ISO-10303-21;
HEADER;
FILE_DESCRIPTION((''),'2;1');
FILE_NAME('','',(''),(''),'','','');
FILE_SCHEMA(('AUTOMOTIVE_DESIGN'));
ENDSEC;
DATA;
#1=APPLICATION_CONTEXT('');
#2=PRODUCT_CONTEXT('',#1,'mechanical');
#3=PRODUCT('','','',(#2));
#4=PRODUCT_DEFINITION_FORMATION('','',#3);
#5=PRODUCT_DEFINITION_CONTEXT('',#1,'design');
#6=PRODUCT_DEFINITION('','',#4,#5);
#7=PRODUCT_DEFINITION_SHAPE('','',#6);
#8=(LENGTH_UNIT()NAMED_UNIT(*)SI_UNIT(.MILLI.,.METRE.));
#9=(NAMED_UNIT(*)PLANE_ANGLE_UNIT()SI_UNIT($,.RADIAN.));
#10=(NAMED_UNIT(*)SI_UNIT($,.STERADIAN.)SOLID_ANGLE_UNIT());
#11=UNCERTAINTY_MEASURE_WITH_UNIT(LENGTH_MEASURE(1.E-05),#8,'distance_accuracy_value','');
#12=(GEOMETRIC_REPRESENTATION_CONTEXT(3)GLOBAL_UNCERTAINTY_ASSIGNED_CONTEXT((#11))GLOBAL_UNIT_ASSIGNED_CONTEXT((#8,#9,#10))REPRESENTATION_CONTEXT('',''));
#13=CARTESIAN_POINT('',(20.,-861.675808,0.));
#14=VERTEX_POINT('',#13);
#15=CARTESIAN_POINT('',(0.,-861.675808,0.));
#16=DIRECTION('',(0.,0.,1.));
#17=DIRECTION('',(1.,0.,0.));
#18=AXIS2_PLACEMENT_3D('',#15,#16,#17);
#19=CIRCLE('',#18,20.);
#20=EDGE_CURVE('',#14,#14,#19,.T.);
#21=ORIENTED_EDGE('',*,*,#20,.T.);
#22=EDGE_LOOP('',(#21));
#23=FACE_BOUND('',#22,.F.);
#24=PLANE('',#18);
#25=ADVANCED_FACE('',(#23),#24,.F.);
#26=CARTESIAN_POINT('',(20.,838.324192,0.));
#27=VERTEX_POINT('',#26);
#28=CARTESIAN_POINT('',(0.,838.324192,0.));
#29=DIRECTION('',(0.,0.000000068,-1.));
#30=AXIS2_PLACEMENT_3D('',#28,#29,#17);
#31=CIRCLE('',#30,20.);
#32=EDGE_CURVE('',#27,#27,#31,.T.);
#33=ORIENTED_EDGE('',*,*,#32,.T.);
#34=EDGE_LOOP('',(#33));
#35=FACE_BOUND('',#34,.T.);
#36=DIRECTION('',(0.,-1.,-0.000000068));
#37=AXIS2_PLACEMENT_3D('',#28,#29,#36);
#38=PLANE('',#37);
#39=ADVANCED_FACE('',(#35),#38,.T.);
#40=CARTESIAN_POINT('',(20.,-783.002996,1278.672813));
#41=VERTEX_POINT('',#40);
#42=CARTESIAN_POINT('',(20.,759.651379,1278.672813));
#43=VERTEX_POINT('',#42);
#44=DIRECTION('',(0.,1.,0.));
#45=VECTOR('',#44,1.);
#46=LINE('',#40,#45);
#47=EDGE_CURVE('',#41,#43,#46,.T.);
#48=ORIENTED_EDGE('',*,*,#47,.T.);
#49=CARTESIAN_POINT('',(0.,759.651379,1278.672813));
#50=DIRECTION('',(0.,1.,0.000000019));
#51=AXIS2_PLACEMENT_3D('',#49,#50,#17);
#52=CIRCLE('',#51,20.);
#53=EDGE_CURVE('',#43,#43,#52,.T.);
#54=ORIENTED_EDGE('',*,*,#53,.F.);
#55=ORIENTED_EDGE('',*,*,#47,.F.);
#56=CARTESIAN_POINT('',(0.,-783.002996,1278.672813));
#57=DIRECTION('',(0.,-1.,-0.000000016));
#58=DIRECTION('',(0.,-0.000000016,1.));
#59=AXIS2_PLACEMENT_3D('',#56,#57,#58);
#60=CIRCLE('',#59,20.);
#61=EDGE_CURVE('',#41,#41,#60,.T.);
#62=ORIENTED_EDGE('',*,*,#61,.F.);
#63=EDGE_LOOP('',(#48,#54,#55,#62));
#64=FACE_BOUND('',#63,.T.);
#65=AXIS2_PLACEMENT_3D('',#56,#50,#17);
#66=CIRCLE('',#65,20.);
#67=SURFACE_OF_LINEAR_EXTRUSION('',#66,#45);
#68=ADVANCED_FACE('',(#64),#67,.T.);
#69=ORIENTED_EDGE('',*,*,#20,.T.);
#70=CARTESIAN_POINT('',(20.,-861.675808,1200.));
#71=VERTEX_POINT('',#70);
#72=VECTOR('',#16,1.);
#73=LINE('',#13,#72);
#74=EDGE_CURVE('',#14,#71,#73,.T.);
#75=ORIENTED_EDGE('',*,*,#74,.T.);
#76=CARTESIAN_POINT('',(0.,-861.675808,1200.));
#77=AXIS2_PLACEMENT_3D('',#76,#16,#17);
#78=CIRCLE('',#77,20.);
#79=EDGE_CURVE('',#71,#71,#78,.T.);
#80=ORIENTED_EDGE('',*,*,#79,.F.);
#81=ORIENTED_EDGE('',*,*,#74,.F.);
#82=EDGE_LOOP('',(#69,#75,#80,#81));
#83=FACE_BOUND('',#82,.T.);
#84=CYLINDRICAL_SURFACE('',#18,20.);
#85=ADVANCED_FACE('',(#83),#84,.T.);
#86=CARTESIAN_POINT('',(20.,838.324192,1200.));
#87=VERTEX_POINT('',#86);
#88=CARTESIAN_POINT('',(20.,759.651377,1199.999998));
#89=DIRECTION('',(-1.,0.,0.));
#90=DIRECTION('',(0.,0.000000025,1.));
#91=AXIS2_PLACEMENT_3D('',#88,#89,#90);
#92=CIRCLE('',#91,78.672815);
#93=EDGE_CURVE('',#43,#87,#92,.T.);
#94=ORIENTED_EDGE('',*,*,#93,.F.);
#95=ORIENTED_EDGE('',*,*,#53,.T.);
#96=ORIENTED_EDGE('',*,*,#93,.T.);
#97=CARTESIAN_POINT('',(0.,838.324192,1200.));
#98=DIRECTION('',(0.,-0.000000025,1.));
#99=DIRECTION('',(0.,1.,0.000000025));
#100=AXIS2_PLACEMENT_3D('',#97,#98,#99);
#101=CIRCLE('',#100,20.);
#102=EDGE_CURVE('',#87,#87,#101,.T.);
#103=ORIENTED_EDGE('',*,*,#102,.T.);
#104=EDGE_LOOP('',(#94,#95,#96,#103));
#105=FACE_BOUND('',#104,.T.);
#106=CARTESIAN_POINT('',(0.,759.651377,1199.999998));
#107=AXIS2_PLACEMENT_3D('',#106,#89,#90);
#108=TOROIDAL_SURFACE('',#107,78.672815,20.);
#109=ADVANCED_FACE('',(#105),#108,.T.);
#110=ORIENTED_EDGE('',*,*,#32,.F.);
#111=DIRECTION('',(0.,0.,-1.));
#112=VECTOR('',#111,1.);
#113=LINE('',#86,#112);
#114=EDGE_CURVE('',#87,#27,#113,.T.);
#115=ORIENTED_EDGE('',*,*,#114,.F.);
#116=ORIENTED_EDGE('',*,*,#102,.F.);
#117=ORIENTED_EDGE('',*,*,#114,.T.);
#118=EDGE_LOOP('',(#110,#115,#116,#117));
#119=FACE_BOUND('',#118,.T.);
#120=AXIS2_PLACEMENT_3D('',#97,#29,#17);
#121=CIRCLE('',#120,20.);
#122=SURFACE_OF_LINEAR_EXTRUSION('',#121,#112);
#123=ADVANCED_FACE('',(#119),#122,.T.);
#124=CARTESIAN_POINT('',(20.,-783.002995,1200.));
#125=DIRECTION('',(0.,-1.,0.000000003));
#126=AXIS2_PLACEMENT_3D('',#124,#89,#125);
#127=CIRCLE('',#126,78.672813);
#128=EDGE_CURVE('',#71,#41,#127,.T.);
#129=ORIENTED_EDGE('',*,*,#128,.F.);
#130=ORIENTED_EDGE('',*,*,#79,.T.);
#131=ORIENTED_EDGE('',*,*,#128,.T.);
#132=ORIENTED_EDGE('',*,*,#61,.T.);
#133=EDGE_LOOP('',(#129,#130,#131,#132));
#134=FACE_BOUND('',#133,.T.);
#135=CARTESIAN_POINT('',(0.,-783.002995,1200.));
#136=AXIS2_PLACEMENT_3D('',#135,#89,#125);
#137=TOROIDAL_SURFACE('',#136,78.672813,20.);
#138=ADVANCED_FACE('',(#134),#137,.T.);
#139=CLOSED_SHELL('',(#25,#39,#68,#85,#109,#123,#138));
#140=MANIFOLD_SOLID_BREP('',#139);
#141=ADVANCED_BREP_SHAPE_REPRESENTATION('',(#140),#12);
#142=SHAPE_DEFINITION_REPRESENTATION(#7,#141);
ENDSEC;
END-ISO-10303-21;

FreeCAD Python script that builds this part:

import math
import FreeCAD as App
import Part
import Sketcher
from FreeCAD import Vector
Q = App.Units.Quantity

doc = App.newDocument("Part")
body = doc.addObject("PartDesign::Body", "Body")

# Sketch on XY plane
sketch1 = body.newObject("Sketcher::SketchObject", "Sketch")
sketch1.AttachmentSupport = (doc.getObject("XY_Plane"), [""])
sketch1.MapMode = "FlatFace"
sketch1.addGeometry(Part.Circle(Vector(0, -862, 0), Vector(0, 0, 1), 20), False)
sketch1.addConstraint([
    Sketcher.Constraint("PointOnObject", 0, 3, -2),
    Sketcher.Constraint("Diameter", 0, Q("40 mm")),
    Sketcher.Constraint("DistanceY", 0, 3, -1, 1, Q("861.675808 mm")),
])

# Sketch on YZ plane
sketch2 = body.newObject("Sketcher::SketchObject", "Sketch001")
sketch2.AttachmentSupport = (doc.getObject("YZ_Plane"), [""])
sketch2.MapMode = "FlatFace"
sketch2.addGeometry([
    Part.LineSegment(Vector(-862, 0, 0), Vector(-862, 1200, 0)),  # 0
    Part.ArcOfCircle(Part.Circle(Vector(-783, 1200, 0), Vector(0, 0, 1), 79), math.radians(90), math.radians(180)),  # 1
    Part.LineSegment(Vector(-783, 1279, 0), Vector(760, 1279, 0)),  # 2
    Part.ArcOfCircle(Part.Circle(Vector(760, 1200, 0), Vector(0, 0, 1), 79), math.radians(0), math.radians(90)),  # 3
    Part.LineSegment(Vector(838, 1200, 0), Vector(838, 0, 0)),  # 4
], False)
sketch2.addConstraint([
    Sketcher.Constraint("Tangent", 0, 2, 1, 2),
    Sketcher.Constraint("Tangent", 1, 1, 2, 1),
    Sketcher.Constraint("Tangent", 2, 2, 3, 2),
    Sketcher.Constraint("Tangent", 3, 1, 4, 1),
    Sketcher.Constraint("Vertical", 0),
    Sketcher.Constraint("Horizontal", 2),
    Sketcher.Constraint("Vertical", 4),
    Sketcher.Constraint("Equal", 1, 3),
    Sketcher.Constraint("PointOnObject", 0, 1, -1),
    Sketcher.Constraint("PointOnObject", 4, 2, -1),
    Sketcher.Constraint("DistanceY", 0, 1, 0, 2, Q("1200 mm")),
    Sketcher.Constraint("DistanceX", 0, 2, 3, 1, Q("1700 mm")),
    Sketcher.Constraint("Radius", 1, Q("78.672813 mm")),
    Sketcher.Constraint("DistanceX", 0, 1, -1, 1, Q("861.675808 mm")),
])
doc.recompute()

additivepipe = body.newObject("PartDesign::AdditivePipe", "AdditivePipe")
additivepipe.Profile = sketch1
additivepipe.Spine = (sketch2, ["Edge1", "Edge2", "Edge3", "Edge4", "Edge5"])

doc.recompute()
